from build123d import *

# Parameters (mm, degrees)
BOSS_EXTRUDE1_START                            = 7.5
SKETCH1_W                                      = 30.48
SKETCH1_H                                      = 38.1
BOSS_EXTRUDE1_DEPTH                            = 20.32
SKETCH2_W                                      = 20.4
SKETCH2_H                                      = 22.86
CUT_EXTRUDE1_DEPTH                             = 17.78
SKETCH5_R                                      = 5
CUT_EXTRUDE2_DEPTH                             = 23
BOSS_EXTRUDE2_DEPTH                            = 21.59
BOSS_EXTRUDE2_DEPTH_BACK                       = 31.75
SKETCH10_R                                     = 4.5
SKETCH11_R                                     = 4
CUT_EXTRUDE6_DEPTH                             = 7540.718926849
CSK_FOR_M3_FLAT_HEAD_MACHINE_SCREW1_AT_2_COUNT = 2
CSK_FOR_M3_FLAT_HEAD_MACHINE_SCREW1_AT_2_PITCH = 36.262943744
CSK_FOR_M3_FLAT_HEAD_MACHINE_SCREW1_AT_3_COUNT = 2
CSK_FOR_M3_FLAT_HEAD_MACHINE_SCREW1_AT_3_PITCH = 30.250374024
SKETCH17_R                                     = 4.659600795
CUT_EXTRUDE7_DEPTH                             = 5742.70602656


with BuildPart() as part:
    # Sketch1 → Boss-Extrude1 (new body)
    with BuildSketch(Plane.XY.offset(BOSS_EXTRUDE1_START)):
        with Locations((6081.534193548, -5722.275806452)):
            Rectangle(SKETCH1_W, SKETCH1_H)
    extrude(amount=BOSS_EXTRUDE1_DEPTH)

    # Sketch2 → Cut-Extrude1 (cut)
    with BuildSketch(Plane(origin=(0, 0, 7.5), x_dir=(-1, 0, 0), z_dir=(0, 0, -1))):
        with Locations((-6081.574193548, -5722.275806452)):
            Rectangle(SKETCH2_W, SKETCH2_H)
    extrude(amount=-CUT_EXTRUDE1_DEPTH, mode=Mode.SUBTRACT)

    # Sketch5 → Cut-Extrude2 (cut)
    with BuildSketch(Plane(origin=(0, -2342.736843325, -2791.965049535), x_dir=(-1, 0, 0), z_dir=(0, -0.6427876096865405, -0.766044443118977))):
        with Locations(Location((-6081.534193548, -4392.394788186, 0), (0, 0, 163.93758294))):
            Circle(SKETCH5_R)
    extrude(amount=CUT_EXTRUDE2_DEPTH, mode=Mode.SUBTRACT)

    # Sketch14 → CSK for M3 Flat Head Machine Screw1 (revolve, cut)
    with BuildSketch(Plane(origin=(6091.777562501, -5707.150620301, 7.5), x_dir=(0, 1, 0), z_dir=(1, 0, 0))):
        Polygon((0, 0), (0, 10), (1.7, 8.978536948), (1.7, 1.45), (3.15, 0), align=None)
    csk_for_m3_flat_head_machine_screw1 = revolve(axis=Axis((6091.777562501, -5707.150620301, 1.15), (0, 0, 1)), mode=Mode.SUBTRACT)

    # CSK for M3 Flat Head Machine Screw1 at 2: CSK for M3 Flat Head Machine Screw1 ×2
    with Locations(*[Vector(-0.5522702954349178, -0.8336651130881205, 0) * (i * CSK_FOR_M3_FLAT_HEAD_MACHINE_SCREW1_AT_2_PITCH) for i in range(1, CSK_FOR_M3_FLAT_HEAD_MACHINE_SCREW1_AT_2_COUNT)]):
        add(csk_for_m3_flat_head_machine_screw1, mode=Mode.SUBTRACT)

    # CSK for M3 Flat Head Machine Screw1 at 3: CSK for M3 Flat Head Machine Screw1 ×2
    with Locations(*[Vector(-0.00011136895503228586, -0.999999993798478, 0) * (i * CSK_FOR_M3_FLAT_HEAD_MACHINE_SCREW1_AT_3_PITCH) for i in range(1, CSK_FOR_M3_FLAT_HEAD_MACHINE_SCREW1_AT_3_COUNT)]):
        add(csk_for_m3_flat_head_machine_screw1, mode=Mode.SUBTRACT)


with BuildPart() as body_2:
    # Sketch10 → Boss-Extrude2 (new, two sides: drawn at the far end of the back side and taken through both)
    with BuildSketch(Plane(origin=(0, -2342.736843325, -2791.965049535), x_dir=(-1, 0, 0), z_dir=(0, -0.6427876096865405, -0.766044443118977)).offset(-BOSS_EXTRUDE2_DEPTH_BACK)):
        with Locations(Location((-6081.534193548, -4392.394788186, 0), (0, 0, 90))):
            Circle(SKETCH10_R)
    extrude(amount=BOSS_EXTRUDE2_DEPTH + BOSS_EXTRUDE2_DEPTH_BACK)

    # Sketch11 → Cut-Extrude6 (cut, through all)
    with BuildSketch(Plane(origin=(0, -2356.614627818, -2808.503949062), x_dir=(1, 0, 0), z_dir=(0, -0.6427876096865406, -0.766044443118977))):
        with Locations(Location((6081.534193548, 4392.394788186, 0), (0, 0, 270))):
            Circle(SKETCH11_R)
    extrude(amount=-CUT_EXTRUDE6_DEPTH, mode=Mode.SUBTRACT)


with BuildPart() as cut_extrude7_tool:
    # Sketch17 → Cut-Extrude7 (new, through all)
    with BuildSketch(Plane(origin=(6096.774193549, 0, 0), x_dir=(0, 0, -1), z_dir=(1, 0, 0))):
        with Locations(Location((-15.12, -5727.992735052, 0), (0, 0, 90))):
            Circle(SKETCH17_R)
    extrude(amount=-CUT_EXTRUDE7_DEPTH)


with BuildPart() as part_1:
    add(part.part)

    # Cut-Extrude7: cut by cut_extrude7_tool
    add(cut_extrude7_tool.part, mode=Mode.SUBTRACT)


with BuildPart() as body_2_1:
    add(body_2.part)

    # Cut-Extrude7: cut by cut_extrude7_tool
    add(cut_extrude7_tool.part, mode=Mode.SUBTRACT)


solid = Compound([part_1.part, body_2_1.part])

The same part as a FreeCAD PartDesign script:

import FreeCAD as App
import Part
import Sketcher

V = App.Vector
Q = App.Units.Quantity


def add_polygon(sketch, points):
    """Adds a closed chain of lines whose ends are joined by coincident constraints."""
    first, n = sketch.GeometryCount, len(points)
    for a, b in zip(points, points[1:] + points[:1]):
        sketch.addGeometry(Part.LineSegment(App.Vector(*a, 0), App.Vector(*b, 0)), False)
    for i in range(n):
        sketch.addConstraint(Sketcher.Constraint("Coincident", first + i, 2, first + (i + 1) % n, 1))

doc = App.newDocument("Part")
body = doc.addObject("PartDesign::Body", "Body")

# Sketch on XY plane
sketch1 = body.newObject("Sketcher::SketchObject", "Sketch")
sketch1.AttachmentSupport = (doc.getObject("XY_Plane"), [""])
sketch1.MapMode = "FlatFace"
sketch1.AttachmentOffset = App.Placement(V(0, 0, 7.5), App.Rotation())
add_polygon(sketch1, [(6066, -5703), (6066, -5741), (6097, -5741), (6097, -5703)])  # lines 0-3
sketch1.addConstraint([
    Sketcher.Constraint("Vertical", 0),
    Sketcher.Constraint("Horizontal", 1),
    Sketcher.Constraint("Vertical", 2),
    Sketcher.Constraint("Horizontal", 3),
    Sketcher.Constraint("DistanceX", 1, 1, 1, 2, Q("1.2 in")),
    Sketcher.Constraint("DistanceY", 0, 2, 0, 1, Q("1.5 in")),
    Sketcher.Constraint("DistanceX", -1, 1, 0, 2, Q("6066.294194 mm")),
    Sketcher.Constraint("DistanceY", 0, 2, -1, 1, Q("5741.325806 mm")),
])
pad1 = body.newObject("PartDesign::Pad", "Pad")
pad1.Profile = sketch1
pad1.Length = Q("0.8 in")

# Sketch on XY plane
sketch2 = body.newObject("Sketcher::SketchObject", "Sketch001")
sketch2.AttachmentSupport = (doc.getObject("XY_Plane"), [""])
sketch2.MapMode = "FlatFace"
sketch2.AttachmentOffset = App.Placement(V(0, 0, 7.5), App.Rotation())
add_polygon(sketch2, [(6092, -5711), (6092, -5734), (6071, -5734), (6071, -5711)])  # lines 0-3
sketch2.addConstraint([
    Sketcher.Constraint("Vertical", 0),
    Sketcher.Constraint("Horizontal", 1),
    Sketcher.Constraint("Vertical", 2),
    Sketcher.Constraint("Horizontal", 3),
    Sketcher.Constraint("DistanceY", 0, 2, 0, 1, Q("0.9 in")),
    Sketcher.Constraint("DistanceX", 1, 2, 1, 1, Q("20.4 mm")),
    Sketcher.Constraint("DistanceX", -1, 1, 0, 2, Q("6091.774194 mm")),
    Sketcher.Constraint("DistanceY", 0, 2, -1, 1, Q("5733.705806 mm")),
])
pocket1 = body.newObject("PartDesign::Pocket", "Pocket")
pocket1.Profile = sketch2
pocket1.Length = Q("0.7 in")
pocket1.Reversed = True

# Sketch on an angled plane
sketch3 = body.newObject("Sketcher::SketchObject", "Sketch002")
sketch3.Placement = App.Placement(V(0, -2342.736843, -2791.96505), App.Rotation(V(-1, 0, 0), V(0, 0.766044443, -0.64278761), V(0, -0.64278761, -0.766044443), "ZXY"))
sketch3.addGeometry(Part.Circle(V(-6082, -4392, 0), V(0, 0, 1), 5), False)
sketch3.addConstraint([
    Sketcher.Constraint("Diameter", 0, Q("10 mm")),
    Sketcher.Constraint("DistanceY", 0, 3, -1, 1, Q("4392.394789 mm")),
    Sketcher.Constraint("DistanceX", 0, 3, -1, 1, Q("6081.534194 mm")),
])
pocket2 = body.newObject("PartDesign::Pocket", "Pocket001")
pocket2.Profile = sketch3
pocket2.Length = 23
pocket2.Reversed = True

# Sketch on YZ plane
sketch4 = body.newObject("Sketcher::SketchObject", "Sketch003")
sketch4.AttachmentSupport = (doc.getObject("YZ_Plane"), [""])
sketch4.MapMode = "FlatFace"
sketch4.AttachmentOffset = App.Placement(V(0, 0, 6091.777563), App.Rotation())
add_polygon(sketch4, [(-5707.2, 17.5), (-5707.2, 7.5), (-5704, 7.5), (-5705.5, 8.9), (-5705.5, 16.5)])  # lines 0-4
sketch4.addGeometry(Part.LineSegment(V(-5707.2, 7.5, 0), V(-5707.2, 17.5, 0)), True)  # axis
sketch4.addConstraint([
    Sketcher.Constraint("Vertical", 0),
    Sketcher.Constraint("Horizontal", 1),
    Sketcher.Constraint("Vertical", 3),
    Sketcher.Constraint("Vertical", 5),
    Sketcher.Constraint("Coincident", 5, 1, 0, 2),
    Sketcher.Constraint("Equal", 0, 5),
    Sketcher.Constraint("Angle", 2, Q("135 deg")),
    Sketcher.Constraint("Angle", 4, Q("149 deg")),
    Sketcher.Constraint("DistanceX", 1, 1, 1, 2, Q("3.15 mm")),
    Sketcher.Constraint("DistanceY", 0, 2, 0, 1, Q("10 mm")),
    Sketcher.Constraint("DistanceY", -1, 1, 0, 2, Q("7.5 mm")),
    Sketcher.Constraint("DistanceY", -1, 1, 2, 2, Q("8.95 mm")),
    Sketcher.Constraint("DistanceX", 0, 2, -1, 1, Q("5707.15062 mm")),
])
groove = body.newObject("PartDesign::Groove", "Groove")
groove.Profile = sketch4
groove.ReferenceAxis = (sketch4, ["Axis0"])
groove.Angle = 360
doc.recompute()

datumline = body.newObject("PartDesign::Line", "DatumLine")
datumline.Placement = App.Placement(V(0, 0, 0), App.Rotation(V(0, 0, 1), V(-0.552270295, -0.833665113, 0)))
linearpattern = body.newObject("PartDesign::LinearPattern", "LinearPattern")
linearpattern.Originals = [groove]
linearpattern.Direction = (datumline, [""])
linearpattern.Mode = "offset"
linearpattern.Offset = 36.262944
linearpattern.Occurrences = 2
body.Tip = linearpattern
doc.recompute()

datumline2 = body.newObject("PartDesign::Line", "DatumLine001")
datumline2.Placement = App.Placement(V(0, 0, 0), App.Rotation(V(0, 0, 1), V(-0.000111369, -0.999999994, 0)))
linearpattern2 = body.newObject("PartDesign::LinearPattern", "LinearPattern001")
linearpattern2.Originals = [groove]
linearpattern2.Direction = (datumline2, [""])
linearpattern2.Mode = "offset"
linearpattern2.Offset = 30.250374
linearpattern2.Occurrences = 2
body.Tip = linearpattern2
body2 = doc.addObject("PartDesign::Body", "Body001")

# Sketch on an angled plane
sketch5 = body2.newObject("Sketcher::SketchObject", "Sketch004")
sketch5.Placement = App.Placement(V(0, -2342.736843, -2791.96505), App.Rotation(V(-1, 0, 0), V(0, 0.766044443, -0.64278761), V(0, -0.64278761, -0.766044443), "ZXY"))
sketch5.addGeometry(Part.Circle(V(-6081.5, -4392.4, 0), V(0, 0, 1), 4.5), False)
sketch5.addConstraint([
    Sketcher.Constraint("Diameter", 0, Q("9 mm")),
    Sketcher.Constraint("DistanceY", 0, 3, -1, 1, Q("4392.394789 mm")),
    Sketcher.Constraint("DistanceX", 0, 3, -1, 1, Q("6081.534194 mm")),
])
pad2 = body2.newObject("PartDesign::Pad", "Pad001")
pad2.Profile = sketch5
pad2.Type = "TwoLengths"
pad2.Length = Q("0.85 in")
pad2.Length2 = Q("1.25 in")

# Sketch on an angled plane
sketch6 = body2.newObject("Sketcher::SketchObject", "Sketch005")
sketch6.Placement = App.Placement(V(0, -2356.614628, -2808.503949), App.Rotation(V(1, 0, 0), V(0, -0.766044443, 0.64278761), V(0, -0.64278761, -0.766044443), "ZXY"))
sketch6.addGeometry(Part.Circle(V(6081.5, 4392.4, 0), V(0, 0, 1), 4), False)
sketch6.addConstraint([
    Sketcher.Constraint("Diameter", 0, Q("8 mm")),
    Sketcher.Constraint("DistanceY", -1, 1, 0, 3, Q("4392.394789 mm")),
    Sketcher.Constraint("DistanceX", -1, 1, 0, 3, Q("6081.534194 mm")),
])
pocket3 = body2.newObject("PartDesign::Pocket", "Pocket002")
pocket3.Profile = sketch6
pocket3.Type = "ThroughAll"
body3 = doc.addObject("PartDesign::Body", "Body002")

# Sketch on YZ plane
sketch7 = body3.newObject("Sketcher::SketchObject", "Sketch006")
sketch7.AttachmentSupport = (doc.getObject("YZ_Plane002"), [""])
sketch7.MapMode = "FlatFace"
sketch7.AttachmentOffset = App.Placement(V(0, 0, 6096.774194), App.Rotation())
sketch7.addGeometry(Part.Circle(V(-5728, 15.1, 0), V(0, 0, 1), 4.7), False)
sketch7.addConstraint([
    Sketcher.Constraint("Diameter", 0, Q("9.319202 mm")),
    Sketcher.Constraint("DistanceY", -1, 1, 0, 3, Q("15.12 mm")),
    Sketcher.Constraint("DistanceX", 0, 3, -1, 1, Q("5727.992735 mm")),
])
pad3 = body3.newObject("PartDesign::Pad", "Pad002")
pad3.Profile = sketch7
pad3.Length = 5742.706027
pad3.Reversed = True
doc.recompute()

body4 = doc.addObject("PartDesign::Body", "Body003")
body4.BaseFeature = body3
boolean = body.newObject("PartDesign::Boolean", "Boolean")
boolean.Type = "Cut"
boolean.addObjects([body4])
doc.recompute()

boolean2 = body2.newObject("PartDesign::Boolean", "Boolean001")
boolean2.Type = "Cut"
boolean2.addObjects([body3])

doc.recompute()
